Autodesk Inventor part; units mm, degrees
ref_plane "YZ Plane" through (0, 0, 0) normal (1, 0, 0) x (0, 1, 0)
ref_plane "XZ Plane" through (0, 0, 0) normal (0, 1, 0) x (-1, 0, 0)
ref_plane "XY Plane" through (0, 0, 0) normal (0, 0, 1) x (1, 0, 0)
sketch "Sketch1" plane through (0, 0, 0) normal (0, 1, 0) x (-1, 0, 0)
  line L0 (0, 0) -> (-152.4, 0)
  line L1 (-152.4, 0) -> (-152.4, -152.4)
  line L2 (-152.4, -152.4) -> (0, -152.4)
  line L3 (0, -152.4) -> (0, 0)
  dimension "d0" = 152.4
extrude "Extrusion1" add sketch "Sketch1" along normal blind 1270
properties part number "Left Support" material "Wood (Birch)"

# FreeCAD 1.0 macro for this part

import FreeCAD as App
import Part
import Sketcher

V = App.Vector
Q = App.Units.Quantity

doc = App.newDocument("Part")
body = doc.addObject("PartDesign::Body", "Body")

# Sketch on XZ plane
sketch1 = body.newObject("Sketcher::SketchObject", "Sketch")
sketch1.AttachmentSupport = (doc.getObject("XZ_Plane"), [""])
sketch1.MapMode = "FlatFace"
sketch1.addGeometry([
    Part.LineSegment(V(0, -152, 0), V(0, 0, 0)),
    Part.LineSegment(V(0, 0, 0), V(152, 0, 0)),
    Part.LineSegment(V(152, 0, 0), V(152, -152, 0)),
    Part.LineSegment(V(152, -152, 0), V(0, -152, 0)),
], False)
sketch1.addConstraint([
    Sketcher.Constraint("Coincident", 0, 2, 1, 1),
    Sketcher.Constraint("Coincident", 1, 2, 2, 1),
    Sketcher.Constraint("Coincident", 2, 2, 3, 1),
    Sketcher.Constraint("Coincident", 3, 2, 0, 1),
    Sketcher.Constraint("Vertical", 0),
    Sketcher.Constraint("Horizontal", 1),
    Sketcher.Constraint("Vertical", 2),
    Sketcher.Constraint("Horizontal", 3),
    Sketcher.Constraint("Coincident", 0, 2, -1, 1),
    Sketcher.Constraint("Equal", 3, 0),
    Sketcher.Constraint("DistanceX", 1, 1, 1, 2, Q("6 in")),
])
pad1 = body.newObject("PartDesign::Pad", "Pad")
pad1.Profile = sketch1
pad1.Length = Q("50 in")
pad1.Reversed = True

doc.recompute()
